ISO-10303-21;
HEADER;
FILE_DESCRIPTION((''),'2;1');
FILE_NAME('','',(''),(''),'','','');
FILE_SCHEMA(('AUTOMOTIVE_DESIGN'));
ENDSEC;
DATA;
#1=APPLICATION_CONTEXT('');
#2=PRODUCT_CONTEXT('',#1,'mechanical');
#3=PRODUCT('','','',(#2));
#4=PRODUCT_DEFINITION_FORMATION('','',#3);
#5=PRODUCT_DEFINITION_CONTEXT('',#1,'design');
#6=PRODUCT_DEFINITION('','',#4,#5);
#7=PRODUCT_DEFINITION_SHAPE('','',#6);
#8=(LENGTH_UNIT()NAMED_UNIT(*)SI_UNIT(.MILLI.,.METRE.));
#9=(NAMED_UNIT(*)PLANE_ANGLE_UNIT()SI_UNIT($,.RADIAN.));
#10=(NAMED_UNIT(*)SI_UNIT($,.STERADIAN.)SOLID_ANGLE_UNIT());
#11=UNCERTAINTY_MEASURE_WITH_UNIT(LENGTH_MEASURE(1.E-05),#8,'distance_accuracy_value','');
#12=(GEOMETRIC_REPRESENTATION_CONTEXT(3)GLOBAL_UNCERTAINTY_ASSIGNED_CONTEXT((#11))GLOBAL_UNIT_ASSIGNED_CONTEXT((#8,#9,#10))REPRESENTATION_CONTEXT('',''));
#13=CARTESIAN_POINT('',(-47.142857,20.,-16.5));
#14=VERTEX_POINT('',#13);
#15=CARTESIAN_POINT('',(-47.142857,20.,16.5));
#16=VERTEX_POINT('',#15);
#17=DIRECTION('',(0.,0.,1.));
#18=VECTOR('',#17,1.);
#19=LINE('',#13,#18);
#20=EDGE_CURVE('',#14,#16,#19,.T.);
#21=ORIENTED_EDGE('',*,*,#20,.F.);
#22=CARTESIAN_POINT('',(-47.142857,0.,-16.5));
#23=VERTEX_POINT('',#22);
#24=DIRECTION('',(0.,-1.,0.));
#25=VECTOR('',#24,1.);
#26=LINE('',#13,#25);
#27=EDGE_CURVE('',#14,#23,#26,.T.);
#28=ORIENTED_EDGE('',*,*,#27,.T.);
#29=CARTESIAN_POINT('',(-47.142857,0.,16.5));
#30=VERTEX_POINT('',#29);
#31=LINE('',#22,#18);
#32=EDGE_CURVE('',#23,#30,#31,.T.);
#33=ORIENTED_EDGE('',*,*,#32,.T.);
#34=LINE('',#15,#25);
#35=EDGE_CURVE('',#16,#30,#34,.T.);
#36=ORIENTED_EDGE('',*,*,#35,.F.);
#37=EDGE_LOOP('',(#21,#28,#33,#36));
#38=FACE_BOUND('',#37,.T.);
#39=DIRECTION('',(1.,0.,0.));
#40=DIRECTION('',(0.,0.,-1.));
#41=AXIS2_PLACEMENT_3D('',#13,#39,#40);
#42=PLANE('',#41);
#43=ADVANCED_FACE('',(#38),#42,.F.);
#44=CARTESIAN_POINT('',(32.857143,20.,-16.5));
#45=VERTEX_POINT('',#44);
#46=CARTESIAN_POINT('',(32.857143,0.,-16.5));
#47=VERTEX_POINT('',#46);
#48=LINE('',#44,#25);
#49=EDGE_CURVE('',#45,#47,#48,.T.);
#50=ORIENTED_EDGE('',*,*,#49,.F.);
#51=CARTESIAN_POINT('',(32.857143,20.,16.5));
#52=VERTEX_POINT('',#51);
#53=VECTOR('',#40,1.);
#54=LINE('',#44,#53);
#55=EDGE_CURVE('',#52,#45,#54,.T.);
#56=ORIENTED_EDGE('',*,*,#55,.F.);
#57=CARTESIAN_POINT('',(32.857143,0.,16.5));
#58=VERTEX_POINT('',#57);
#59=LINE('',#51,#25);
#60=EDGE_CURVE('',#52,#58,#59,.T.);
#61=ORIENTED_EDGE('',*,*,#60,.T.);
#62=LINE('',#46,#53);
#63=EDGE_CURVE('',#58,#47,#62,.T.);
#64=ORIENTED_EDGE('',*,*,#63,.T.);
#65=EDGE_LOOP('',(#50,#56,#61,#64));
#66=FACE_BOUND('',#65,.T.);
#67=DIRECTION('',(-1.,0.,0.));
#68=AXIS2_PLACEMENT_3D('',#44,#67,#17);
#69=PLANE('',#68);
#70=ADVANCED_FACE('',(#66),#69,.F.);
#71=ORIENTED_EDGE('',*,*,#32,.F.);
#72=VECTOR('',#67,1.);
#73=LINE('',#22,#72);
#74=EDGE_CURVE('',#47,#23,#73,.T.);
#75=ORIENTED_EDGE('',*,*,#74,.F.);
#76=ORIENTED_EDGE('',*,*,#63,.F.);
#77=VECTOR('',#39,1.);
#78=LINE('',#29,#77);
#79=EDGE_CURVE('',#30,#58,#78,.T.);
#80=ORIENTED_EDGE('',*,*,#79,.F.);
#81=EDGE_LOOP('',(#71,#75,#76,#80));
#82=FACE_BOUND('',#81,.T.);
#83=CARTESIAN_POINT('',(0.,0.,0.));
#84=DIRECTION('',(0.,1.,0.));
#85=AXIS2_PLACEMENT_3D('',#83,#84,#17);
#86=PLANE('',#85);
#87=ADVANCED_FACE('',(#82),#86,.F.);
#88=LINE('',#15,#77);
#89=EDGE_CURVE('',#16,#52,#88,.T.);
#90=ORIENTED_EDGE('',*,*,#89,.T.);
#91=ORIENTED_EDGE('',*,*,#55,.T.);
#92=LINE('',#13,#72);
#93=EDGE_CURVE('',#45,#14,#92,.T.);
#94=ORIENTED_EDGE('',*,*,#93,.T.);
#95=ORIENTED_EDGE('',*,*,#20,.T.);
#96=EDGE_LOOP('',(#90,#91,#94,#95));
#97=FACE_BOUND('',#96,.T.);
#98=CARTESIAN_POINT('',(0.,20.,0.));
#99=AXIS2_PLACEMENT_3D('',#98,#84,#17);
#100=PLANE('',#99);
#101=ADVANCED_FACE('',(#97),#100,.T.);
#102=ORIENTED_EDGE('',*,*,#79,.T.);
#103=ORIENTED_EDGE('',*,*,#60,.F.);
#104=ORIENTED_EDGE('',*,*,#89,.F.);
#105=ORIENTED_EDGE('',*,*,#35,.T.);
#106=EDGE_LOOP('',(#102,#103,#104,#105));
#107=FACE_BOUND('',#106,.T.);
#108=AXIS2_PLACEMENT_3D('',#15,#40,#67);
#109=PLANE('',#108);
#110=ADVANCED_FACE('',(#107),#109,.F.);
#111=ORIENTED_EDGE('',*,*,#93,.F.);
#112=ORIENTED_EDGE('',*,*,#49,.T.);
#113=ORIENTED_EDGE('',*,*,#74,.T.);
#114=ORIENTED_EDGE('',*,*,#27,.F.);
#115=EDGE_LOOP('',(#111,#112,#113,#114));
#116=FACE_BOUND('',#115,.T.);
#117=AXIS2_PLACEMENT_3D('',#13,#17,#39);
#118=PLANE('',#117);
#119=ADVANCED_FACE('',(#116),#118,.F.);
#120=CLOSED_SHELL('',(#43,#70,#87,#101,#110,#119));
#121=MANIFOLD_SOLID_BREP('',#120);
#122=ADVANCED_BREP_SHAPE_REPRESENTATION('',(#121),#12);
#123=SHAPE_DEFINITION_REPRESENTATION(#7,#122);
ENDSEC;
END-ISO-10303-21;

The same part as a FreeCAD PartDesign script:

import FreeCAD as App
import Part
import Sketcher

V = App.Vector
Q = App.Units.Quantity


def add_polygon(sketch, points):
    """Adds a closed chain of lines whose ends are joined by coincident constraints."""
    first, n = sketch.GeometryCount, len(points)
    for a, b in zip(points, points[1:] + points[:1]):
        sketch.addGeometry(Part.LineSegment(App.Vector(*a, 0), App.Vector(*b, 0)), False)
    for i in range(n):
        sketch.addConstraint(Sketcher.Constraint("Coincident", first + i, 2, first + (i + 1) % n, 1))

doc = App.newDocument("Part")
body = doc.addObject("PartDesign::Body", "Body")

# Sketch on XZ plane
sketch1 = body.newObject("Sketcher::SketchObject", "Sketch")
sketch1.AttachmentSupport = (doc.getObject("XZ_Plane"), [""])
sketch1.MapMode = "FlatFace"
add_polygon(sketch1, [(-47.142857, -16.5), (-47.142857, 16.5), (32.857143, 16.5), (32.857143, -16.5)])  # lines 0-3
sketch1.addConstraint(Sketcher.Constraint("Vertical", 0))
sketch1.addConstraint(Sketcher.Constraint("Horizontal", 1))
sketch1.addConstraint(Sketcher.Constraint("Vertical", 2))
sketch1.addConstraint(Sketcher.Constraint("Horizontal", 3))
sketch1.addConstraint(Sketcher.Constraint("DistanceX", 1, 1, 1, 2, Q("80 mm")))
sketch1.addConstraint(Sketcher.Constraint("DistanceY", 0, 1, 0, 2, Q("33 mm")))
sketch1.addConstraint(Sketcher.Constraint("DistanceY", -1, 1, 0, 2, Q("16.5 mm")))
sketch1.addConstraint(Sketcher.Constraint("DistanceX", 0, 2, -1, 1, Q("47.142857 mm")))
pad1 = body.newObject("PartDesign::Pad", "Pad")
pad1.Profile = sketch1
pad1.Length = 20
pad1.Reversed = True

doc.recompute()
